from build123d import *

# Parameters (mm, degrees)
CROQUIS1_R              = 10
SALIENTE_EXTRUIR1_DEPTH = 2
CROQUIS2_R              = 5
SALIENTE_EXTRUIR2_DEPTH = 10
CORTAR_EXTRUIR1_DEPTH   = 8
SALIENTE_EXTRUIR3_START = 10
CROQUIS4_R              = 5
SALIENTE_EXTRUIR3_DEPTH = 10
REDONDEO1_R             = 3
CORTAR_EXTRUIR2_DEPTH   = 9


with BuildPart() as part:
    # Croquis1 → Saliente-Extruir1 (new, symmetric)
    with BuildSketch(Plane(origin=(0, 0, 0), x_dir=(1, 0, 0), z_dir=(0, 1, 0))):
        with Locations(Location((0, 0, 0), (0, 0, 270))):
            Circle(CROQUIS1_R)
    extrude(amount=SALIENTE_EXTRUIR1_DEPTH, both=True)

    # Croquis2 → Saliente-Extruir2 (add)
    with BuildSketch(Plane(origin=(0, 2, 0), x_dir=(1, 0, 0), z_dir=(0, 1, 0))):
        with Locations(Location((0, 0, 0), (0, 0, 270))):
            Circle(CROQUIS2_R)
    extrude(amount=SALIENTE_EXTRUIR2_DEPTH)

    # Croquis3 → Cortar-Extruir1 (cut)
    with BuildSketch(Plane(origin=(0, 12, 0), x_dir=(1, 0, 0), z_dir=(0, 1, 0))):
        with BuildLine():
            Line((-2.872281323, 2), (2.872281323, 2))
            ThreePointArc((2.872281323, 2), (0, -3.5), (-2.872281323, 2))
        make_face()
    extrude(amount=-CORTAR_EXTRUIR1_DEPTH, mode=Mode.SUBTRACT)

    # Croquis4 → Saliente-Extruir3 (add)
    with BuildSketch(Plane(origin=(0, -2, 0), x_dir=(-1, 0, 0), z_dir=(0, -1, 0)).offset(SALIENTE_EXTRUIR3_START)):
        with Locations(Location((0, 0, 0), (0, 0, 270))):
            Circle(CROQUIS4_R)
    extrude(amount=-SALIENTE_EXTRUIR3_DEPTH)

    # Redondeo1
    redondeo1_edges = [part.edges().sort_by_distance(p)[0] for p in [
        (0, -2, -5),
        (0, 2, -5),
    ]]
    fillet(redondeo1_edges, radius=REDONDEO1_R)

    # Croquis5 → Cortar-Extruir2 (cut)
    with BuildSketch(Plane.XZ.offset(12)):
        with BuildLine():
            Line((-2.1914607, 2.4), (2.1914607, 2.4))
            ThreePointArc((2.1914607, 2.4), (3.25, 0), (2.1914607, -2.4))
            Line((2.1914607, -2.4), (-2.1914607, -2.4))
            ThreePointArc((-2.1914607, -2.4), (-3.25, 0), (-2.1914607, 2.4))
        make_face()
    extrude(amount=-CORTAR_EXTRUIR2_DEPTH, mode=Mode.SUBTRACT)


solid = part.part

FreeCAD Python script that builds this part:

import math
import FreeCAD as App
import Part
import Sketcher
Q = App.Units.Quantity


def edges_at(feature, points):
    """Names of the edges that pass closest to the given points."""
    edges = feature.Shape.Edges
    near = lambda p: min(range(len(edges)), key=lambda i: edges[i].distToShape(Part.Vertex(*p))[0])
    return sorted({f"Edge{near(p) + 1}" for p in points})

doc = App.newDocument("Part")
params = doc.addObject("Spreadsheet::Sheet", "Params")
for row, (alias, value) in enumerate([
    ("sketch1_diameter", "20 mm"),
    ("pad1_length", "4 mm"),
    ("sketch2_diameter", "10 mm"),
    ("pad2_length", "10 mm"),
    ("sketch3_radius", "3.5 mm"),
    ("pocket1_length", "8 mm"),
    ("sketch4_diameter", "10 mm"),
    ("pad3_length", "10 mm"),
    ("fillet_radius", "3 mm"),
    ("sketch5_radius", "3.25 mm"),
    ("pocket2_length", "9 mm"),
], start=1):
    params.set(f"A{row}", alias)
    params.set(f"B{row}", "=" + value)
    params.setAlias(f"B{row}", alias)

body = doc.addObject("PartDesign::Body", "Body")

sketch1 = body.newObject("Sketcher::SketchObject", "Sketch")
sketch1.AttachmentSupport = (doc.getObject("XZ_Plane"), [""])
sketch1.MapMode = "FlatFace"
sketch1.addGeometry(Part.Circle(App.Vector(0, 0, 0), App.Vector(0, 0, 1), 10), False)
sketch1.addConstraint(Sketcher.Constraint("Coincident", 0, 3, -1, 1))
sketch1.addConstraint(Sketcher.Constraint("Diameter", 0, Q("20 mm")))
sketch1.setExpression("Constraints[1]", "Params.sketch1_diameter")
pad1 = body.newObject("PartDesign::Pad", "Pad")
pad1.Profile = sketch1
pad1.setExpression("Length", "Params.pad1_length")
pad1.Midplane = True

sketch2 = body.newObject("Sketcher::SketchObject", "Sketch001")
sketch2.AttachmentSupport = (doc.getObject("XZ_Plane"), [""])
sketch2.MapMode = "FlatFace"
sketch2.AttachmentOffset = App.Placement(App.Vector(0, 0, -2), App.Rotation())
sketch2.addGeometry(Part.Circle(App.Vector(0, 0, 0), App.Vector(0, 0, 1), 5), False)
sketch2.addConstraint(Sketcher.Constraint("Coincident", 0, 3, -1, 1))
sketch2.addConstraint(Sketcher.Constraint("Diameter", 0, Q("10 mm")))
sketch2.setExpression("Constraints[1]", "Params.sketch2_diameter")
pad2 = body.newObject("PartDesign::Pad", "Pad001")
pad2.Profile = sketch2
pad2.setExpression("Length", "Params.pad2_length")
pad2.Reversed = True

sketch3 = body.newObject("Sketcher::SketchObject", "Sketch002")
sketch3.AttachmentSupport = (doc.getObject("XZ_Plane"), [""])
sketch3.MapMode = "FlatFace"
sketch3.AttachmentOffset = App.Placement(App.Vector(0, 0, -12), App.Rotation())
sketch3.addGeometry(Part.LineSegment(App.Vector(2.9, -2, 0), App.Vector(-2.9, -2, 0)), False)
sketch3.addGeometry(Part.ArcOfCircle(Part.Circle(App.Vector(0, 0, 0), App.Vector(0, 0, 1), 3.5), math.radians(-35), math.radians(215)), False)
sketch3.addConstraint(Sketcher.Constraint("Coincident", 0, 1, 1, 1))
sketch3.addConstraint(Sketcher.Constraint("Coincident", 1, 2, 0, 2))
sketch3.addConstraint(Sketcher.Constraint("Horizontal", 0))
sketch3.addConstraint(Sketcher.Constraint("Coincident", 1, 3, -1, 1))
sketch3.addConstraint(Sketcher.Constraint("Radius", 1, Q("3.5 mm")))
sketch3.addConstraint(Sketcher.Constraint("DistanceY", 0, 1, -1, 1, Q("2 mm")))
sketch3.setExpression("Constraints[4]", "Params.sketch3_radius")
pocket1 = body.newObject("PartDesign::Pocket", "Pocket")
pocket1.Profile = sketch3
pocket1.setExpression("Length", "Params.pocket1_length")
pocket1.Reversed = True

sketch4 = body.newObject("Sketcher::SketchObject", "Sketch003")
sketch4.AttachmentSupport = (doc.getObject("XZ_Plane"), [""])
sketch4.MapMode = "FlatFace"
sketch4.AttachmentOffset = App.Placement(App.Vector(0, 0, 12), App.Rotation())
sketch4.addGeometry(Part.Circle(App.Vector(0, 0, 0), App.Vector(0, 0, 1), 5), False)
sketch4.addConstraint(Sketcher.Constraint("Coincident", 0, 3, -1, 1))
sketch4.addConstraint(Sketcher.Constraint("Diameter", 0, Q("10 mm")))
sketch4.setExpression("Constraints[1]", "Params.sketch4_diameter")
pad3 = body.newObject("PartDesign::Pad", "Pad002")
pad3.Profile = sketch4
pad3.setExpression("Length", "Params.pad3_length")
pad3.Reversed = True
doc.recompute()

fillet = body.newObject("PartDesign::Fillet", "Fillet")
fillet.Base = (pad3, edges_at(pad3, [(0, -2, -5), (0, 2, -5)]))
fillet.setExpression("Radius", "Params.fillet_radius")

sketch5 = body.newObject("Sketcher::SketchObject", "Sketch004")
sketch5.AttachmentSupport = (doc.getObject("XZ_Plane"), [""])
sketch5.MapMode = "FlatFace"
sketch5.AttachmentOffset = App.Placement(App.Vector(0, 0, 12), App.Rotation())
sketch5.addGeometry(Part.LineSegment(App.Vector(2.2, 2.4, 0), App.Vector(-2.2, 2.4, 0)), False)
sketch5.addGeometry(Part.ArcOfCircle(Part.Circle(App.Vector(0, 0, 0), App.Vector(0, 0, 1), 3.2), math.radians(132), math.radians(228)), False)
sketch5.addGeometry(Part.LineSegment(App.Vector(-2.2, -2.4, 0), App.Vector(2.2, -2.4, 0)), False)
sketch5.addGeometry(Part.ArcOfCircle(Part.Circle(App.Vector(0, 0, 0), App.Vector(0, 0, 1), 3.2), math.radians(-48), math.radians(48)), False)
sketch5.addConstraint(Sketcher.Constraint("Coincident", 0, 2, 1, 1))
sketch5.addConstraint(Sketcher.Constraint("Coincident", 1, 2, 2, 1))
sketch5.addConstraint(Sketcher.Constraint("Coincident", 2, 2, 3, 1))
sketch5.addConstraint(Sketcher.Constraint("Coincident", 3, 2, 0, 1))
sketch5.addConstraint(Sketcher.Constraint("Horizontal", 0))
sketch5.addConstraint(Sketcher.Constraint("Horizontal", 2))
sketch5.addConstraint(Sketcher.Constraint("Coincident", 1, 3, -1, 1))
sketch5.addConstraint(Sketcher.Constraint("Coincident", 3, 3, -1, 1))
sketch5.addConstraint(Sketcher.Constraint("Equal", 1, 3))
sketch5.addConstraint(Sketcher.Constraint("Vertical", 0, 2, 1, 2))
sketch5.addConstraint(Sketcher.Constraint("Radius", 1, Q("3.25 mm")))
sketch5.addConstraint(Sketcher.Constraint("DistanceY", -1, 1, 0, 2, Q("2.4 mm")))
sketch5.setExpression("Constraints[10]", "Params.sketch5_radius")
pocket2 = body.newObject("PartDesign::Pocket", "Pocket001")
pocket2.Profile = sketch5
pocket2.setExpression("Length", "Params.pocket2_length")

doc.recompute()
